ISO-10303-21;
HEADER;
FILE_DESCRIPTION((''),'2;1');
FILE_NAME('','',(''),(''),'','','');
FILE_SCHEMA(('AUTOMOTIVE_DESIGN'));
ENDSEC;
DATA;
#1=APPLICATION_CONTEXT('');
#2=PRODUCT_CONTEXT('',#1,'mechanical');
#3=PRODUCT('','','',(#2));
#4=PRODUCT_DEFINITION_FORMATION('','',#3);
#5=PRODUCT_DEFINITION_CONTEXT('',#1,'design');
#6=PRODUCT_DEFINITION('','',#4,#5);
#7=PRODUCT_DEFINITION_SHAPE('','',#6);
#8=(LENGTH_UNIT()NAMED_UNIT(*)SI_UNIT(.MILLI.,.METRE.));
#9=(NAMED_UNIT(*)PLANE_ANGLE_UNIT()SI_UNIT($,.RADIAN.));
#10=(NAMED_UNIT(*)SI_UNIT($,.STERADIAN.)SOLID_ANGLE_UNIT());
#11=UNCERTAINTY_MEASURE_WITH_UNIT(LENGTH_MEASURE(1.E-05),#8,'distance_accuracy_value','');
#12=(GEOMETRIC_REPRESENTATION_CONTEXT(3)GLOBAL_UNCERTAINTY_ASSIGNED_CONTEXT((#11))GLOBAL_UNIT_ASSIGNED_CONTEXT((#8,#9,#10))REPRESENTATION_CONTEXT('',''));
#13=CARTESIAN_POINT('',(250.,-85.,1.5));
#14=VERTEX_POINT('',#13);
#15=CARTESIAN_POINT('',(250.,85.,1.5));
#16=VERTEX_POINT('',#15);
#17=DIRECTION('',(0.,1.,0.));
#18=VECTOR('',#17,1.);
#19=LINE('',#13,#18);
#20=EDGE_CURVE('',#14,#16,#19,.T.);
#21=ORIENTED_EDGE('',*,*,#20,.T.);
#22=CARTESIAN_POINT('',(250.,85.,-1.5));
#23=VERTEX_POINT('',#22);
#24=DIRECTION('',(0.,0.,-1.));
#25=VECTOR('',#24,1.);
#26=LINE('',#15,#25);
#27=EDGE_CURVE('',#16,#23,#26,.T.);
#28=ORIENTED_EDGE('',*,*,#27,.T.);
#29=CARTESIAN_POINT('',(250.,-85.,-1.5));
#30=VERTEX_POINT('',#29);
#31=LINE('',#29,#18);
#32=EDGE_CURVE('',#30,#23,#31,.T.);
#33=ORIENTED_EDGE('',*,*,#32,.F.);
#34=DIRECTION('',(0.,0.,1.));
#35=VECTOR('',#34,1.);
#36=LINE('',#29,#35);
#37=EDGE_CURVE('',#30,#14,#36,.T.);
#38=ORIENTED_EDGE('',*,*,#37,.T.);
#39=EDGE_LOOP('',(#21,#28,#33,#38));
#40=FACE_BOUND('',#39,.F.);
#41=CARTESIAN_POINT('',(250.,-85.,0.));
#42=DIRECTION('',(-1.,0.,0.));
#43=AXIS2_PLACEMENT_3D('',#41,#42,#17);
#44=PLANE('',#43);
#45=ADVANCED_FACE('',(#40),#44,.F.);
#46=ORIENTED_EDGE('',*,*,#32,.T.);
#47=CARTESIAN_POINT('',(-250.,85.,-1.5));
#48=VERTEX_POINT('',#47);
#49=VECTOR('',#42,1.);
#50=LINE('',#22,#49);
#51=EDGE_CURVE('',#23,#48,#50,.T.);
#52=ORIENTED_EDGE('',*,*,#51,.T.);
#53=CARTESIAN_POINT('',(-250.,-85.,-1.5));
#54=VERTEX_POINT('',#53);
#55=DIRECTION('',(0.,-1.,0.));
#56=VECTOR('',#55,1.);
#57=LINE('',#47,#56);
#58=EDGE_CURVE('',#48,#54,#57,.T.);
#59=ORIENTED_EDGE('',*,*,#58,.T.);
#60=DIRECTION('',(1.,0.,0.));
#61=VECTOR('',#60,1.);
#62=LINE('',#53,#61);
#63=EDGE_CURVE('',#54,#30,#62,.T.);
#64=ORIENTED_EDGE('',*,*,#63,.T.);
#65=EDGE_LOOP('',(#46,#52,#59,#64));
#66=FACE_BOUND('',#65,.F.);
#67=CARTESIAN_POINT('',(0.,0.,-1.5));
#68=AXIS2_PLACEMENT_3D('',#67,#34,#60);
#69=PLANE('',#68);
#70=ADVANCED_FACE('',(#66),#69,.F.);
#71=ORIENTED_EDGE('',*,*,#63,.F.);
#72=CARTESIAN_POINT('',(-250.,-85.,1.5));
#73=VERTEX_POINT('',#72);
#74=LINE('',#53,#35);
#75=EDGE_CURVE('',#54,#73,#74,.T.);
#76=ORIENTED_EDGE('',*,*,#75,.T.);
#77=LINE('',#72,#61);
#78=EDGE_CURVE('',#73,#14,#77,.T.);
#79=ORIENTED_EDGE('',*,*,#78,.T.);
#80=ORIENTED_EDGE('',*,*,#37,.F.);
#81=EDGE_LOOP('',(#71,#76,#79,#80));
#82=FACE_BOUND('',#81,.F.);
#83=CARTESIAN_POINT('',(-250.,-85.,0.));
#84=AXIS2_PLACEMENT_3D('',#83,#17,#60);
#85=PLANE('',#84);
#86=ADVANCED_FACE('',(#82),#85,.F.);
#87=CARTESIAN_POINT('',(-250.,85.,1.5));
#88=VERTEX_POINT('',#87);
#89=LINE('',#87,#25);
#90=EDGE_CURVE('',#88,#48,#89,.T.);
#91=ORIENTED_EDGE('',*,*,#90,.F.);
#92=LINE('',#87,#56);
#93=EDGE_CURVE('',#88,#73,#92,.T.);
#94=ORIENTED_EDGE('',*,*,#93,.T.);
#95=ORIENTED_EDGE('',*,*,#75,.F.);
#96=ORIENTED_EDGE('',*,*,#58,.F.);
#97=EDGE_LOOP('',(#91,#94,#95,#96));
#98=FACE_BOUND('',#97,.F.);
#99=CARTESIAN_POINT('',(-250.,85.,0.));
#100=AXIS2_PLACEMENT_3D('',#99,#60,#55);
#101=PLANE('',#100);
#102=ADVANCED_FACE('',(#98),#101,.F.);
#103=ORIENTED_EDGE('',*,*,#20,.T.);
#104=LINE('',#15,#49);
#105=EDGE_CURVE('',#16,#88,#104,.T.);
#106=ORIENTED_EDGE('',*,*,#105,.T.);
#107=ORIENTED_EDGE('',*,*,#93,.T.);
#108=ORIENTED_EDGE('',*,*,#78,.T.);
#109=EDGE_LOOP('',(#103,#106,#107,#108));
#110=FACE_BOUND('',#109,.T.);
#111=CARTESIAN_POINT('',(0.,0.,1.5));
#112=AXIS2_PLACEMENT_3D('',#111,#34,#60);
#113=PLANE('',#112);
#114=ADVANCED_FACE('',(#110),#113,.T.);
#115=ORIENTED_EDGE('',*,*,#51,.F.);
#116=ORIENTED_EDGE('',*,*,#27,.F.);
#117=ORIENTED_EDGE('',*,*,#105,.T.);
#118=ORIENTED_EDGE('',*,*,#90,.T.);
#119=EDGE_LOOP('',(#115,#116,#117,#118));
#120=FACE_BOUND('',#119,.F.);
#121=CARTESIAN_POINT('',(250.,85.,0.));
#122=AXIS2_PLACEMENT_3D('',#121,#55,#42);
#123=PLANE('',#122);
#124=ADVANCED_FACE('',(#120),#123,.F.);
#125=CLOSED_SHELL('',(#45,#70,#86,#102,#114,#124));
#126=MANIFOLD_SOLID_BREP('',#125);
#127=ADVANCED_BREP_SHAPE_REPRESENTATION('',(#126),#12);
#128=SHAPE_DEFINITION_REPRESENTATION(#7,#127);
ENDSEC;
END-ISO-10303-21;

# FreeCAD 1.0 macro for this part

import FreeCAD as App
import Part
import Sketcher


def add_polygon(sketch, points):
    """Adds a closed chain of lines whose ends are joined by coincident constraints."""
    first, n = sketch.GeometryCount, len(points)
    for a, b in zip(points, points[1:] + points[:1]):
        sketch.addGeometry(Part.LineSegment(App.Vector(*a, 0), App.Vector(*b, 0)), False)
    for i in range(n):
        sketch.addConstraint(Sketcher.Constraint("Coincident", first + i, 2, first + (i + 1) % n, 1))

doc = App.newDocument("Part")
params = doc.addObject("Spreadsheet::Sheet", "Params")
for row, (alias, value) in enumerate([
    ("sketch1_width", "500 mm"),
    ("sketch1_height", "170 mm"),
    ("pad1_length", "3 mm"),
], start=1):
    params.set(f"A{row}", alias)
    params.set(f"B{row}", "=" + value)
    params.setAlias(f"B{row}", alias)

body = doc.addObject("PartDesign::Body", "Body")

# Sketch on XY plane
sketch1 = doc.addObject("Sketcher::SketchObject", "Sketch")
body.addObject(sketch1)
sketch1.AttachmentSupport = (doc.XY_Plane, [""])
sketch1.MapMode = "FlatFace"
add_polygon(sketch1, [(-250, 85), (-250, -85), (250, -85), (250, 85)])  # lines 0-3
sketch1.addConstraint(Sketcher.Constraint("Vertical", 0))
sketch1.addConstraint(Sketcher.Constraint("Horizontal", 1))
sketch1.addConstraint(Sketcher.Constraint("Vertical", 2))
sketch1.addConstraint(Sketcher.Constraint("Horizontal", 3))
sketch1.addConstraint(Sketcher.Constraint("Symmetric", 0, 2, 2, 2, -1, 1))
sketch1.addConstraint(Sketcher.Constraint("DistanceX", 1, 1, 1, 2, 500.0))
sketch1.addConstraint(Sketcher.Constraint("DistanceY", 0, 2, 0, 1, 170.0))
sketch1.setExpression("Constraints[9]", "Params.sketch1_width")
sketch1.setExpression("Constraints[10]", "Params.sketch1_height")
pad1 = doc.addObject("PartDesign::Pad", "Pad")
body.addObject(pad1)
pad1.Profile = sketch1
pad1.setExpression("Length", "Params.pad1_length")
pad1.Midplane = True

doc.recompute()
